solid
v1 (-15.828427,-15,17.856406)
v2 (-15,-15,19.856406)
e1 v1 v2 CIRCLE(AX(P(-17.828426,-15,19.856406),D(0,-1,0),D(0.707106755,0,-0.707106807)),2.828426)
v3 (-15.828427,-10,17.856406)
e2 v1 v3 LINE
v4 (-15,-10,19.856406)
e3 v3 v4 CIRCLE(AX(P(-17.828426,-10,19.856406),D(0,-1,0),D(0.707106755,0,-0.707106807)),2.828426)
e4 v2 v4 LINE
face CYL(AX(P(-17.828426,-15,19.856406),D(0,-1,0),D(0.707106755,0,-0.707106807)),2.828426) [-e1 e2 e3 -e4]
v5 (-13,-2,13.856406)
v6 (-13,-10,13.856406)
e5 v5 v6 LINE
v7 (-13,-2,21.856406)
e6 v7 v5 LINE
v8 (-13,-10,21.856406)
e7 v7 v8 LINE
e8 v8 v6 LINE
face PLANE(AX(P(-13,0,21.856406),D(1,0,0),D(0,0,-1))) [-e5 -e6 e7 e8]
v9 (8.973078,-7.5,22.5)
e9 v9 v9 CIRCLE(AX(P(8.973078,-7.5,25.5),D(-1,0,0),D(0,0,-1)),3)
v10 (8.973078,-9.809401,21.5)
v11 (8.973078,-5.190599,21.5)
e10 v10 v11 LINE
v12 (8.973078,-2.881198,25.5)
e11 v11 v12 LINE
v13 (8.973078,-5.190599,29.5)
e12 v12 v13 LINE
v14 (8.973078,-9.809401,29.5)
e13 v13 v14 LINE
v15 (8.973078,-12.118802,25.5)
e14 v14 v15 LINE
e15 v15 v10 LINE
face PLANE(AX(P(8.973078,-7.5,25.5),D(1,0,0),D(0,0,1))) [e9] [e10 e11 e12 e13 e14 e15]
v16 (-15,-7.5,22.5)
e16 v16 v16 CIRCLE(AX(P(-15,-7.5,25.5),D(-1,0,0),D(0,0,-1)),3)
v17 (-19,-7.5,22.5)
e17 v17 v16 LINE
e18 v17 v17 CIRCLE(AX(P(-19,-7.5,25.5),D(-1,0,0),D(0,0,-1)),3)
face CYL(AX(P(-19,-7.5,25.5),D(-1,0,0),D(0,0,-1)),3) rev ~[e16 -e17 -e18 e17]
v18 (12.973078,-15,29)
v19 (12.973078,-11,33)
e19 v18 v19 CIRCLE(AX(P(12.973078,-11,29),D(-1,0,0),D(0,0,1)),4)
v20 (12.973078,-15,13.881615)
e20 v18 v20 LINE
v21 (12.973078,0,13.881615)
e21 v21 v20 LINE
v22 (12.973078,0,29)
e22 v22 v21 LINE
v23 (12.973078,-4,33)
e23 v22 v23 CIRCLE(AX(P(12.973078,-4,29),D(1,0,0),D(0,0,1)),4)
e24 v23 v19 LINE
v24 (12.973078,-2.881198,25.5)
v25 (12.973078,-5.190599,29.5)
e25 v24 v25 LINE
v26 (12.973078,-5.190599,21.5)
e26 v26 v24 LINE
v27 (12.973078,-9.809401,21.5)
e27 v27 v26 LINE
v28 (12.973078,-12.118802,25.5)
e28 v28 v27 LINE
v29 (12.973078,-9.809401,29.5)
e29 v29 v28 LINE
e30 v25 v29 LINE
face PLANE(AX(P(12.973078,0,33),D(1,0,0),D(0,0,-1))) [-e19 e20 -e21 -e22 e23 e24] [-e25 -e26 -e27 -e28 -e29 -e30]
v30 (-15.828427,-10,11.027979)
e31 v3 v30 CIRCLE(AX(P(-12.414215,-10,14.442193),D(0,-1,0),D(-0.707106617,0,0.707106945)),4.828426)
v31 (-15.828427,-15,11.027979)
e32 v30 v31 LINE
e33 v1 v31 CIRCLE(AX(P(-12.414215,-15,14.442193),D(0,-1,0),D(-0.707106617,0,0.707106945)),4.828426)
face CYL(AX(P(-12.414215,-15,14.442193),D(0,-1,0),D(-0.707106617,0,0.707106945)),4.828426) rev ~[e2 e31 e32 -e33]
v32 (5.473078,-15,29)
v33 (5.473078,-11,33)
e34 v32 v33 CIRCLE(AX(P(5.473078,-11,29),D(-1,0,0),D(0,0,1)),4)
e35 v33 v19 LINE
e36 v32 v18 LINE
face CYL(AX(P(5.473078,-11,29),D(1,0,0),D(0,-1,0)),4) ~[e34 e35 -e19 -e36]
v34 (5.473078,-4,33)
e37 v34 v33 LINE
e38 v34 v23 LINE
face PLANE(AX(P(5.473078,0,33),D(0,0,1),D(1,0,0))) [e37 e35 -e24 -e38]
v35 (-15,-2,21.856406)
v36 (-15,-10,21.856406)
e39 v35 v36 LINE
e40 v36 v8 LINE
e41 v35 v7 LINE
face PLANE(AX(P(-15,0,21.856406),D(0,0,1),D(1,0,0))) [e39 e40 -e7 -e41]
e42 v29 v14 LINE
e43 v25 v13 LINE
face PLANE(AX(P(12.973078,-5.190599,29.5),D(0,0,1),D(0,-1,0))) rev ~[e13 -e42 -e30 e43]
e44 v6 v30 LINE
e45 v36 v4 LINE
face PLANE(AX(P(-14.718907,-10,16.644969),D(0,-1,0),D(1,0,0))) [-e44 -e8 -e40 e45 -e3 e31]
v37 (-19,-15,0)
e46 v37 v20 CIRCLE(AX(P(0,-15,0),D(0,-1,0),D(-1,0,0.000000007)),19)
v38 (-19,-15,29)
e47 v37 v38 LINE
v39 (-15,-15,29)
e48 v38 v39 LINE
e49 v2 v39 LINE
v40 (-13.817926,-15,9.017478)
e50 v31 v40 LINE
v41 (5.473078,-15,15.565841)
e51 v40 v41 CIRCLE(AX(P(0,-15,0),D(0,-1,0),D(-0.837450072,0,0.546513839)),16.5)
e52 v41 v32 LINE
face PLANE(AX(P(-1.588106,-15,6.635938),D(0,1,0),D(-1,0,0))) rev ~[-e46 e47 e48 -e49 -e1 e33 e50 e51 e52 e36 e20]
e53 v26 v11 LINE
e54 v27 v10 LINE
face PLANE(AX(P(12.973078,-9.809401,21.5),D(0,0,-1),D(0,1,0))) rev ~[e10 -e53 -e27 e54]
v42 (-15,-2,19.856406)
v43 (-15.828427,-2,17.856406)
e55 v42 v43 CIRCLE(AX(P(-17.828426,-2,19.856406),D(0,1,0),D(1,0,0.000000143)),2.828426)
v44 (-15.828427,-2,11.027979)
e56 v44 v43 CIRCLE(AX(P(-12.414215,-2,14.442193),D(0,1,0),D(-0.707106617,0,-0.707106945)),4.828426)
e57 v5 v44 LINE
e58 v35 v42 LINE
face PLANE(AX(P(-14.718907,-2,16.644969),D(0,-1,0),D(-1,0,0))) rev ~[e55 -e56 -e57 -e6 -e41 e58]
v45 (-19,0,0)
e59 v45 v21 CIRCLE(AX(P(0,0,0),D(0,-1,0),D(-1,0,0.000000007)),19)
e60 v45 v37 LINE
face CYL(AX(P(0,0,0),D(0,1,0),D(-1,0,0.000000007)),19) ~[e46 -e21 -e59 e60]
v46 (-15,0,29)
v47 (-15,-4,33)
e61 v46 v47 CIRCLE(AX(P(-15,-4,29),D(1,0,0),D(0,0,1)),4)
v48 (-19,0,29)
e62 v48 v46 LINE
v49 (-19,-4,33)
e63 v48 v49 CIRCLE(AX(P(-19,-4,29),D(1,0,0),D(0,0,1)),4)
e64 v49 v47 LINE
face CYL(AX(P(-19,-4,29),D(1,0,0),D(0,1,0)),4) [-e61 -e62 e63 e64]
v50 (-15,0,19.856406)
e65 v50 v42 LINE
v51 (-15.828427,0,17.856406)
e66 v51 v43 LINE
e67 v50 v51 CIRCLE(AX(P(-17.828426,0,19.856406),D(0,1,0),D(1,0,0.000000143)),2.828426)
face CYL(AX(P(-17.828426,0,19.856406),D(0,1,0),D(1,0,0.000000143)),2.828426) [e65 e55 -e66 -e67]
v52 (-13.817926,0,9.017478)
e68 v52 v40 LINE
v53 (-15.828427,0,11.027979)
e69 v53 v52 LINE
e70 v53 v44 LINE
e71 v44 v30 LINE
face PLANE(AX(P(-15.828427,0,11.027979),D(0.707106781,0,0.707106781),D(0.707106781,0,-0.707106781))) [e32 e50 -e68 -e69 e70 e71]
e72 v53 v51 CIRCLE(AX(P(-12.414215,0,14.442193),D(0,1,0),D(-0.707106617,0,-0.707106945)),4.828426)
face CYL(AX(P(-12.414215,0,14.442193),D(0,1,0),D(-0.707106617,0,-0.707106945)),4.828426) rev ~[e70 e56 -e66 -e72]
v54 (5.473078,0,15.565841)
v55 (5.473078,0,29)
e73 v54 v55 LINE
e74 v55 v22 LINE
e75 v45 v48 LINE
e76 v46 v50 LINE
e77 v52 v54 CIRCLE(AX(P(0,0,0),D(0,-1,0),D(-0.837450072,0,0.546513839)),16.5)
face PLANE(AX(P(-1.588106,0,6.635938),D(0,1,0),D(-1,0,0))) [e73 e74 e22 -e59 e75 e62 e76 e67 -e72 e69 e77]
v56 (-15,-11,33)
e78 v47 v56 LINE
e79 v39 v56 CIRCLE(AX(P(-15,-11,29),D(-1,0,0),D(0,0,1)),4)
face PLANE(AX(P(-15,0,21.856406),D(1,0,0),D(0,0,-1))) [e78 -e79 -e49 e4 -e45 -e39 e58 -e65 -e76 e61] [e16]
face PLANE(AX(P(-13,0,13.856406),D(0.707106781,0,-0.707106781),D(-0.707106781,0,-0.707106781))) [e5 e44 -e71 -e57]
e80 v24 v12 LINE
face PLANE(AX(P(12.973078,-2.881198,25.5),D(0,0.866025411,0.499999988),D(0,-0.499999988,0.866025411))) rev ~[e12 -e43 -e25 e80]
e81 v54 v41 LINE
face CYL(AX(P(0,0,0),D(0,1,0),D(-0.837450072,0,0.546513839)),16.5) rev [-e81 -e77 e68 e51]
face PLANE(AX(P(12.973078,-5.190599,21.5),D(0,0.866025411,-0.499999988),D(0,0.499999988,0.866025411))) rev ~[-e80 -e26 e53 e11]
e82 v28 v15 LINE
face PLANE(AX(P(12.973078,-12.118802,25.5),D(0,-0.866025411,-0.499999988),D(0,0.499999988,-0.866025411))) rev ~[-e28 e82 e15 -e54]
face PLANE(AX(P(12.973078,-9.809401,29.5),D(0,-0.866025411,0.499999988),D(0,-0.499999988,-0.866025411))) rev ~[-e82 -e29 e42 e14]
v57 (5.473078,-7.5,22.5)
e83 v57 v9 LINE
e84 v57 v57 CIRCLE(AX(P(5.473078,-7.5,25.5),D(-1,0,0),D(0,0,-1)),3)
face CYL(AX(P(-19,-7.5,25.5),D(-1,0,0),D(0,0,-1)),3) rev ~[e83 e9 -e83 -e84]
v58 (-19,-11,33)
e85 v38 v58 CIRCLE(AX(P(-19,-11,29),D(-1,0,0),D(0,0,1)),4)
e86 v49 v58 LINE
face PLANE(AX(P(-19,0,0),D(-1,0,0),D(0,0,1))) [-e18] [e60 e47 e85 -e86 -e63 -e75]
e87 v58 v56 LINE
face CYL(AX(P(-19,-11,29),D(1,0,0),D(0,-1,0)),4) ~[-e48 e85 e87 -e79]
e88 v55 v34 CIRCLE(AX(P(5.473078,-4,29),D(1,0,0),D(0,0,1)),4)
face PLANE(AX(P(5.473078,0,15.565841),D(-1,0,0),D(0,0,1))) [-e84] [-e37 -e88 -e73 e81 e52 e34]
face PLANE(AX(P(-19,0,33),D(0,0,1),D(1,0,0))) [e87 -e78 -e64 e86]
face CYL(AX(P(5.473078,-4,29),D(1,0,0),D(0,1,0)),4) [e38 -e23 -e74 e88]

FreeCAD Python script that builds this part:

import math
import FreeCAD as App
import Part
import Sketcher
from FreeCAD import Vector
Q = App.Units.Quantity


def edges_at(feature, points):
    """Names of the edges that pass closest to the given points."""
    edges = feature.Shape.Edges
    near = lambda p: min(range(len(edges)), key=lambda i: edges[i].distToShape(Part.Vertex(*p))[0])
    return sorted({f"Edge{near(p) + 1}" for p in points})

doc = App.newDocument("Part")
params = doc.addObject("Spreadsheet::Sheet", "Params")
for row, (alias, value) in enumerate([
    ("sketch1_radius", "19 mm"),
    ("sketch1_radius2", "16.5 mm"),
    ("sketch1_width", "2 mm"),
    ("sketch1_width2", "4 mm"),
    ("sketch1_height", "33 mm"),
    ("pad1_length", "15 mm"),
    ("sketch2_diameter", "6 mm"),
    ("fillet_radius", "4 mm"),
    ("pocket2_length", "4 mm"),
    ("sketch4_width", "2 mm"),
    ("sketch4_height", "8 mm"),
    ("sketch4_length", "4 mm"),
    ("pocket3_length", "5 mm"),
    ("sketch5_width", "2 mm"),
    ("sketch5_height", "8 mm"),
    ("sketch5_length", "4 mm"),
    ("pocket4_length", "2 mm"),
], start=1):
    params.set(f"A{row}", alias)
    params.set(f"B{row}", "=" + value)
    params.setAlias(f"B{row}", alias)

body = doc.addObject("PartDesign::Body", "Body")

# Sketch on XZ plane
sketch1 = body.newObject("Sketcher::SketchObject", "Sketch")
sketch1.AttachmentSupport = (doc.getObject("XZ_Plane"), [""])
sketch1.MapMode = "FlatFace"
sketch1.addGeometry([
    Part.LineSegment(Vector(-19, 33, 0), Vector(-19, 0, 0)),  # 0
    Part.ArcOfCircle(Part.Circle(Vector(0, 0, 0), Vector(0, 0, 1), 19), math.radians(180), math.radians(406.937668)),  # 1
    Part.LineSegment(Vector(12.973078, 13.881615, 0), Vector(12.973078, 33, 0)),  # 2
    Part.LineSegment(Vector(12.973078, 33, 0), Vector(5.473078, 33, 0)),  # 3
    Part.LineSegment(Vector(5.473078, 33, 0), Vector(5.473078, 15.565841, 0)),  # 4
    Part.ArcOfCircle(Part.Circle(Vector(0, 0, 0), Vector(0, 0, 1), 16.5), math.radians(146.871825), math.radians(430.627906)),  # 5
    Part.LineSegment(Vector(-13.817926, 9.017478, 0), Vector(-15.828427, 11.027979, 0)),  # 6
    Part.LineSegment(Vector(-15.828427, 11.027979, 0), Vector(-13, 13.856406, 0)),  # 7
    Part.LineSegment(Vector(-13, 13.856406, 0), Vector(-13, 21.856406, 0)),  # 8
    Part.LineSegment(Vector(-13, 21.856406, 0), Vector(-15, 21.856406, 0)),  # 9
    Part.LineSegment(Vector(-15, 21.856406, 0), Vector(-15, 33, 0)),  # 10
    Part.LineSegment(Vector(-15, 33, 0), Vector(-19, 33, 0)),  # 11
], False)
sketch1.addConstraint([
    Sketcher.Constraint("Tangent", 0, 2, 1, 1),
    Sketcher.Constraint("Coincident", 1, 2, 2, 1),
    Sketcher.Constraint("Coincident", 2, 2, 3, 1),
    Sketcher.Constraint("Coincident", 3, 2, 4, 1),
    Sketcher.Constraint("Coincident", 4, 2, 5, 2),
    Sketcher.Constraint("Coincident", 5, 1, 6, 1),
    Sketcher.Constraint("Coincident", 6, 2, 7, 1),
    Sketcher.Constraint("Coincident", 7, 2, 8, 1),
    Sketcher.Constraint("Coincident", 8, 2, 9, 1),
    Sketcher.Constraint("Coincident", 9, 2, 10, 1),
    Sketcher.Constraint("Coincident", 10, 2, 11, 1),
    Sketcher.Constraint("Coincident", 11, 2, 0, 1),
    Sketcher.Constraint("Vertical", 0),
    Sketcher.Constraint("Vertical", 2),
    Sketcher.Constraint("Horizontal", 3),
    Sketcher.Constraint("Vertical", 4),
    Sketcher.Constraint("Vertical", 8),
    Sketcher.Constraint("Horizontal", 9),
    Sketcher.Constraint("Vertical", 10),
    Sketcher.Constraint("Horizontal", 11),
    Sketcher.Constraint("Coincident", 1, 3, -1, 1),
    Sketcher.Constraint("Coincident", 5, 3, -1, 1),
    Sketcher.Constraint("Perpendicular", 6, 7),
    Sketcher.Constraint("Horizontal", 3, 2, 10, 2),
    Sketcher.Constraint("Radius", 1, Q("19 mm")),
    Sketcher.Constraint("Radius", 5, Q("16.5 mm")),
    Sketcher.Constraint("DistanceX", 9, 2, 9, 1, Q("2 mm")),
    Sketcher.Constraint("DistanceX", 11, 2, 11, 1, Q("4 mm")),
    Sketcher.Constraint("DistanceY", 0, 2, 0, 1, Q("33 mm")),
    Sketcher.Constraint("DistanceY", 8, 1, 8, 2, Q("8 mm")),
    Sketcher.Constraint("Angle", 6, Q("135 deg")),
    Sketcher.Constraint("Distance", 7, Q("4 mm")),
    Sketcher.Constraint("DistanceX", 3, 2, 3, 1, Q("7.5 mm")),
    Sketcher.Constraint("DistanceY", 4, 2, 4, 1, Q("17.434159 mm")),
    Sketcher.Constraint("DistanceX", 6, 2, 5, 1, Q("2.010501 mm")),
])
sketch1.setExpression("Constraints[24]", "Params.sketch1_radius")
sketch1.setExpression("Constraints[25]", "Params.sketch1_radius2")
sketch1.setExpression("Constraints[26]", "Params.sketch1_width")
sketch1.setExpression("Constraints[27]", "Params.sketch1_width2")
sketch1.setExpression("Constraints[28]", "Params.sketch1_height")
pad1 = body.newObject("PartDesign::Pad", "Pad")
pad1.Profile = sketch1
pad1.setExpression("Length", "Params.pad1_length")

# Sketch on YZ plane
sketch2 = body.newObject("Sketcher::SketchObject", "Sketch001")
sketch2.AttachmentSupport = (doc.getObject("YZ_Plane"), [""])
sketch2.MapMode = "FlatFace"
sketch2.AttachmentOffset = App.Placement(Vector(0, 0, -19), App.Rotation())
sketch2.addGeometry(Part.Circle(Vector(-7.5, 25.5, 0), Vector(0, 0, 1), 3), False)
sketch2.addConstraint([
    Sketcher.Constraint("Diameter", 0, Q("6 mm")),
    Sketcher.Constraint("DistanceX", 0, 3, -1, 1, Q("7.5 mm")),
    Sketcher.Constraint("DistanceY", -1, 1, 0, 3, Q("25.5 mm")),
])
sketch2.setExpression("Constraints[0]", "Params.sketch2_diameter")
pocket1 = body.newObject("PartDesign::Pocket", "Pocket")
pocket1.Profile = sketch2
pocket1.Type = "ThroughAll"
pocket1.Reversed = True
doc.recompute()

fillet = body.newObject("PartDesign::Fillet", "Fillet")
fillet.Base = (pocket1, edges_at(pocket1, [
    (-17, 0, 33),
    (-17, -15, 33),
    (9.223, -15, 33),
    (9.223, 0, 33),
]))
fillet.setExpression("Radius", "Params.fillet_radius")

# Sketch on YZ plane
sketch3 = body.newObject("Sketcher::SketchObject", "Sketch002")
sketch3.AttachmentSupport = (doc.getObject("YZ_Plane"), [""])
sketch3.MapMode = "FlatFace"
sketch3.AttachmentOffset = App.Placement(Vector(0, 0, 12.973078), App.Rotation())
sketch3.addGeometry([
    Part.LineSegment(Vector(-9.809401, 21.5, 0), Vector(-5.190599, 21.5, 0)),  # 0
    Part.LineSegment(Vector(-5.190599, 21.5, 0), Vector(-2.881198, 25.5, 0)),  # 1
    Part.LineSegment(Vector(-2.881198, 25.5, 0), Vector(-5.190599, 29.5, 0)),  # 2
    Part.LineSegment(Vector(-5.190599, 29.5, 0), Vector(-9.809401, 29.5, 0)),  # 3
    Part.LineSegment(Vector(-9.809401, 29.5, 0), Vector(-12.118802, 25.5, 0)),  # 4
    Part.LineSegment(Vector(-12.118802, 25.5, 0), Vector(-9.809401, 21.5, 0)),  # 5
], False)
sketch3.addConstraint([
    Sketcher.Constraint("Coincident", 0, 2, 1, 1),
    Sketcher.Constraint("Coincident", 1, 2, 2, 1),
    Sketcher.Constraint("Coincident", 2, 2, 3, 1),
    Sketcher.Constraint("Coincident", 3, 2, 4, 1),
    Sketcher.Constraint("Coincident", 4, 2, 5, 1),
    Sketcher.Constraint("Coincident", 5, 2, 0, 1),
    Sketcher.Constraint("Horizontal", 0),
    Sketcher.Constraint("Horizontal", 3),
    Sketcher.Constraint("Parallel", 1, 4),
    Sketcher.Constraint("Parallel", 2, 5),
    Sketcher.Constraint("Horizontal", 1, 2, 4, 2),
    Sketcher.Constraint("Vertical", 0, 2, 2, 2),
    Sketcher.Constraint("Vertical", 3, 2, 5, 2),
    Sketcher.Constraint("Angle", 1, Q("60.000001 deg")),
    Sketcher.Constraint("DistanceY", 0, 2, 1, 2, Q("4 mm")),
    Sketcher.Constraint("DistanceY", -1, 1, 0, 2, Q("21.5 mm")),
    Sketcher.Constraint("DistanceX", 0, 1, 0, 2, Q("4.618802 mm")),
    Sketcher.Constraint("DistanceX", 0, 2, -1, 1, Q("5.190599 mm")),
])
pocket2 = body.newObject("PartDesign::Pocket", "Pocket001")
pocket2.Profile = sketch3
pocket2.setExpression("Length", "Params.pocket2_length")

# Sketch on XZ plane
sketch4 = body.newObject("Sketcher::SketchObject", "Sketch003")
sketch4.AttachmentSupport = (doc.getObject("XZ_Plane"), [""])
sketch4.MapMode = "FlatFace"
sketch4.AttachmentOffset = App.Placement(Vector(0, 0, 15), App.Rotation())
sketch4.addGeometry([
    Part.LineSegment(Vector(-15, 21.856406, 0), Vector(-15, 19.856406, 0)),  # 0
    Part.ArcOfCircle(Part.Circle(Vector(-17.828426, 19.856406, 0), Vector(0, 0, 1), 2.828426), math.radians(-45.000002), math.radians(0.000008)),  # 1
    Part.ArcOfCircle(Part.Circle(Vector(-12.414215, 14.442193, 0), Vector(0, 0, 1), 4.828426), math.radians(134.999987), math.radians(225.000013)),  # 2
    Part.LineSegment(Vector(-15.828427, 11.027979, 0), Vector(-13, 13.856406, 0)),  # 3
    Part.LineSegment(Vector(-13, 13.856406, 0), Vector(-13, 21.856406, 0)),  # 4
    Part.LineSegment(Vector(-13, 21.856406, 0), Vector(-15, 21.856406, 0)),  # 5
], False)
sketch4.addConstraint([
    Sketcher.Constraint("Tangent", 0, 2, 1, 2),
    Sketcher.Constraint("Tangent", 1, 1, 2, 1),
    Sketcher.Constraint("Coincident", 2, 2, 3, 1),
    Sketcher.Constraint("Coincident", 3, 2, 4, 1),
    Sketcher.Constraint("Coincident", 4, 2, 5, 1),
    Sketcher.Constraint("Coincident", 5, 2, 0, 1),
    Sketcher.Constraint("Vertical", 0),
    Sketcher.Constraint("Vertical", 4),
    Sketcher.Constraint("Horizontal", 5),
    Sketcher.Constraint("Vertical", 1, 1, 2, 2),
    Sketcher.Constraint("Equal", 5, 0),
    Sketcher.Constraint("DistanceX", 5, 2, 5, 1, Q("2 mm")),
    Sketcher.Constraint("DistanceY", 4, 1, 4, 2, Q("8 mm")),
    Sketcher.Constraint("Angle", 3, Q("45 deg")),
    Sketcher.Constraint("Distance", 3, Q("4 mm")),
    Sketcher.Constraint("DistanceX", 0, 2, -1, 1, Q("15 mm")),
    Sketcher.Constraint("DistanceY", 1, 1, 0, 2, Q("2 mm")),
    Sketcher.Constraint("DistanceY", -1, 1, 2, 2, Q("11.027979 mm")),
])
sketch4.setExpression("Constraints[11]", "Params.sketch4_width")
sketch4.setExpression("Constraints[12]", "Params.sketch4_height")
sketch4.setExpression("Constraints[14]", "Params.sketch4_length")
pocket3 = body.newObject("PartDesign::Pocket", "Pocket002")
pocket3.Profile = sketch4
pocket3.setExpression("Length", "Params.pocket3_length")

# Sketch on XZ plane
sketch5 = body.newObject("Sketcher::SketchObject", "Sketch004")
sketch5.AttachmentSupport = (doc.getObject("XZ_Plane"), [""])
sketch5.MapMode = "FlatFace"
sketch5.addGeometry([
    Part.LineSegment(Vector(-15, 19.856406, 0), Vector(-15, 21.856406, 0)),  # 0
    Part.LineSegment(Vector(-15, 21.856406, 0), Vector(-13, 21.856406, 0)),  # 1
    Part.LineSegment(Vector(-13, 21.856406, 0), Vector(-13, 13.856406, 0)),  # 2
    Part.LineSegment(Vector(-13, 13.856406, 0), Vector(-15.828427, 11.027979, 0)),  # 3
    Part.ArcOfCircle(Part.Circle(Vector(-12.414215, 14.442193, 0), Vector(0, 0, 1), 4.828426), math.radians(134.999987), math.radians(225.000013)),  # 4
    Part.ArcOfCircle(Part.Circle(Vector(-17.828426, 19.856406, 0), Vector(0, 0, 1), 2.828426), math.radians(-45.000002), math.radians(0.000008)),  # 5
], False)
sketch5.addConstraint([
    Sketcher.Constraint("Coincident", 0, 2, 1, 1),
    Sketcher.Constraint("Coincident", 1, 2, 2, 1),
    Sketcher.Constraint("Coincident", 2, 2, 3, 1),
    Sketcher.Constraint("Coincident", 3, 2, 4, 2),
    Sketcher.Constraint("Tangent", 4, 1, 5, 1),
    Sketcher.Constraint("Tangent", 5, 2, 0, 1),
    Sketcher.Constraint("Vertical", 0),
    Sketcher.Constraint("Horizontal", 1),
    Sketcher.Constraint("Vertical", 2),
    Sketcher.Constraint("Vertical", 3, 2, 4, 1),
    Sketcher.Constraint("Equal", 1, 0),
    Sketcher.Constraint("DistanceX", 1, 1, 1, 2, Q("2 mm")),
    Sketcher.Constraint("DistanceY", 2, 2, 2, 1, Q("8 mm")),
    Sketcher.Constraint("Angle", 3, Q("-135 deg")),
    Sketcher.Constraint("Distance", 3, Q("4 mm")),
    Sketcher.Constraint("DistanceX", 0, 2, -1, 1, Q("15 mm")),
    Sketcher.Constraint("DistanceX", 5, 3, 3, 2, Q("1.999999 mm")),
    Sketcher.Constraint("DistanceY", -1, 1, 3, 2, Q("11.027979 mm")),
])
sketch5.setExpression("Constraints[11]", "Params.sketch5_width")
sketch5.setExpression("Constraints[12]", "Params.sketch5_height")
sketch5.setExpression("Constraints[14]", "Params.sketch5_length")
pocket4 = body.newObject("PartDesign::Pocket", "Pocket003")
pocket4.Profile = sketch5
pocket4.setExpression("Length", "Params.pocket4_length")
pocket4.Reversed = True

doc.recompute()
